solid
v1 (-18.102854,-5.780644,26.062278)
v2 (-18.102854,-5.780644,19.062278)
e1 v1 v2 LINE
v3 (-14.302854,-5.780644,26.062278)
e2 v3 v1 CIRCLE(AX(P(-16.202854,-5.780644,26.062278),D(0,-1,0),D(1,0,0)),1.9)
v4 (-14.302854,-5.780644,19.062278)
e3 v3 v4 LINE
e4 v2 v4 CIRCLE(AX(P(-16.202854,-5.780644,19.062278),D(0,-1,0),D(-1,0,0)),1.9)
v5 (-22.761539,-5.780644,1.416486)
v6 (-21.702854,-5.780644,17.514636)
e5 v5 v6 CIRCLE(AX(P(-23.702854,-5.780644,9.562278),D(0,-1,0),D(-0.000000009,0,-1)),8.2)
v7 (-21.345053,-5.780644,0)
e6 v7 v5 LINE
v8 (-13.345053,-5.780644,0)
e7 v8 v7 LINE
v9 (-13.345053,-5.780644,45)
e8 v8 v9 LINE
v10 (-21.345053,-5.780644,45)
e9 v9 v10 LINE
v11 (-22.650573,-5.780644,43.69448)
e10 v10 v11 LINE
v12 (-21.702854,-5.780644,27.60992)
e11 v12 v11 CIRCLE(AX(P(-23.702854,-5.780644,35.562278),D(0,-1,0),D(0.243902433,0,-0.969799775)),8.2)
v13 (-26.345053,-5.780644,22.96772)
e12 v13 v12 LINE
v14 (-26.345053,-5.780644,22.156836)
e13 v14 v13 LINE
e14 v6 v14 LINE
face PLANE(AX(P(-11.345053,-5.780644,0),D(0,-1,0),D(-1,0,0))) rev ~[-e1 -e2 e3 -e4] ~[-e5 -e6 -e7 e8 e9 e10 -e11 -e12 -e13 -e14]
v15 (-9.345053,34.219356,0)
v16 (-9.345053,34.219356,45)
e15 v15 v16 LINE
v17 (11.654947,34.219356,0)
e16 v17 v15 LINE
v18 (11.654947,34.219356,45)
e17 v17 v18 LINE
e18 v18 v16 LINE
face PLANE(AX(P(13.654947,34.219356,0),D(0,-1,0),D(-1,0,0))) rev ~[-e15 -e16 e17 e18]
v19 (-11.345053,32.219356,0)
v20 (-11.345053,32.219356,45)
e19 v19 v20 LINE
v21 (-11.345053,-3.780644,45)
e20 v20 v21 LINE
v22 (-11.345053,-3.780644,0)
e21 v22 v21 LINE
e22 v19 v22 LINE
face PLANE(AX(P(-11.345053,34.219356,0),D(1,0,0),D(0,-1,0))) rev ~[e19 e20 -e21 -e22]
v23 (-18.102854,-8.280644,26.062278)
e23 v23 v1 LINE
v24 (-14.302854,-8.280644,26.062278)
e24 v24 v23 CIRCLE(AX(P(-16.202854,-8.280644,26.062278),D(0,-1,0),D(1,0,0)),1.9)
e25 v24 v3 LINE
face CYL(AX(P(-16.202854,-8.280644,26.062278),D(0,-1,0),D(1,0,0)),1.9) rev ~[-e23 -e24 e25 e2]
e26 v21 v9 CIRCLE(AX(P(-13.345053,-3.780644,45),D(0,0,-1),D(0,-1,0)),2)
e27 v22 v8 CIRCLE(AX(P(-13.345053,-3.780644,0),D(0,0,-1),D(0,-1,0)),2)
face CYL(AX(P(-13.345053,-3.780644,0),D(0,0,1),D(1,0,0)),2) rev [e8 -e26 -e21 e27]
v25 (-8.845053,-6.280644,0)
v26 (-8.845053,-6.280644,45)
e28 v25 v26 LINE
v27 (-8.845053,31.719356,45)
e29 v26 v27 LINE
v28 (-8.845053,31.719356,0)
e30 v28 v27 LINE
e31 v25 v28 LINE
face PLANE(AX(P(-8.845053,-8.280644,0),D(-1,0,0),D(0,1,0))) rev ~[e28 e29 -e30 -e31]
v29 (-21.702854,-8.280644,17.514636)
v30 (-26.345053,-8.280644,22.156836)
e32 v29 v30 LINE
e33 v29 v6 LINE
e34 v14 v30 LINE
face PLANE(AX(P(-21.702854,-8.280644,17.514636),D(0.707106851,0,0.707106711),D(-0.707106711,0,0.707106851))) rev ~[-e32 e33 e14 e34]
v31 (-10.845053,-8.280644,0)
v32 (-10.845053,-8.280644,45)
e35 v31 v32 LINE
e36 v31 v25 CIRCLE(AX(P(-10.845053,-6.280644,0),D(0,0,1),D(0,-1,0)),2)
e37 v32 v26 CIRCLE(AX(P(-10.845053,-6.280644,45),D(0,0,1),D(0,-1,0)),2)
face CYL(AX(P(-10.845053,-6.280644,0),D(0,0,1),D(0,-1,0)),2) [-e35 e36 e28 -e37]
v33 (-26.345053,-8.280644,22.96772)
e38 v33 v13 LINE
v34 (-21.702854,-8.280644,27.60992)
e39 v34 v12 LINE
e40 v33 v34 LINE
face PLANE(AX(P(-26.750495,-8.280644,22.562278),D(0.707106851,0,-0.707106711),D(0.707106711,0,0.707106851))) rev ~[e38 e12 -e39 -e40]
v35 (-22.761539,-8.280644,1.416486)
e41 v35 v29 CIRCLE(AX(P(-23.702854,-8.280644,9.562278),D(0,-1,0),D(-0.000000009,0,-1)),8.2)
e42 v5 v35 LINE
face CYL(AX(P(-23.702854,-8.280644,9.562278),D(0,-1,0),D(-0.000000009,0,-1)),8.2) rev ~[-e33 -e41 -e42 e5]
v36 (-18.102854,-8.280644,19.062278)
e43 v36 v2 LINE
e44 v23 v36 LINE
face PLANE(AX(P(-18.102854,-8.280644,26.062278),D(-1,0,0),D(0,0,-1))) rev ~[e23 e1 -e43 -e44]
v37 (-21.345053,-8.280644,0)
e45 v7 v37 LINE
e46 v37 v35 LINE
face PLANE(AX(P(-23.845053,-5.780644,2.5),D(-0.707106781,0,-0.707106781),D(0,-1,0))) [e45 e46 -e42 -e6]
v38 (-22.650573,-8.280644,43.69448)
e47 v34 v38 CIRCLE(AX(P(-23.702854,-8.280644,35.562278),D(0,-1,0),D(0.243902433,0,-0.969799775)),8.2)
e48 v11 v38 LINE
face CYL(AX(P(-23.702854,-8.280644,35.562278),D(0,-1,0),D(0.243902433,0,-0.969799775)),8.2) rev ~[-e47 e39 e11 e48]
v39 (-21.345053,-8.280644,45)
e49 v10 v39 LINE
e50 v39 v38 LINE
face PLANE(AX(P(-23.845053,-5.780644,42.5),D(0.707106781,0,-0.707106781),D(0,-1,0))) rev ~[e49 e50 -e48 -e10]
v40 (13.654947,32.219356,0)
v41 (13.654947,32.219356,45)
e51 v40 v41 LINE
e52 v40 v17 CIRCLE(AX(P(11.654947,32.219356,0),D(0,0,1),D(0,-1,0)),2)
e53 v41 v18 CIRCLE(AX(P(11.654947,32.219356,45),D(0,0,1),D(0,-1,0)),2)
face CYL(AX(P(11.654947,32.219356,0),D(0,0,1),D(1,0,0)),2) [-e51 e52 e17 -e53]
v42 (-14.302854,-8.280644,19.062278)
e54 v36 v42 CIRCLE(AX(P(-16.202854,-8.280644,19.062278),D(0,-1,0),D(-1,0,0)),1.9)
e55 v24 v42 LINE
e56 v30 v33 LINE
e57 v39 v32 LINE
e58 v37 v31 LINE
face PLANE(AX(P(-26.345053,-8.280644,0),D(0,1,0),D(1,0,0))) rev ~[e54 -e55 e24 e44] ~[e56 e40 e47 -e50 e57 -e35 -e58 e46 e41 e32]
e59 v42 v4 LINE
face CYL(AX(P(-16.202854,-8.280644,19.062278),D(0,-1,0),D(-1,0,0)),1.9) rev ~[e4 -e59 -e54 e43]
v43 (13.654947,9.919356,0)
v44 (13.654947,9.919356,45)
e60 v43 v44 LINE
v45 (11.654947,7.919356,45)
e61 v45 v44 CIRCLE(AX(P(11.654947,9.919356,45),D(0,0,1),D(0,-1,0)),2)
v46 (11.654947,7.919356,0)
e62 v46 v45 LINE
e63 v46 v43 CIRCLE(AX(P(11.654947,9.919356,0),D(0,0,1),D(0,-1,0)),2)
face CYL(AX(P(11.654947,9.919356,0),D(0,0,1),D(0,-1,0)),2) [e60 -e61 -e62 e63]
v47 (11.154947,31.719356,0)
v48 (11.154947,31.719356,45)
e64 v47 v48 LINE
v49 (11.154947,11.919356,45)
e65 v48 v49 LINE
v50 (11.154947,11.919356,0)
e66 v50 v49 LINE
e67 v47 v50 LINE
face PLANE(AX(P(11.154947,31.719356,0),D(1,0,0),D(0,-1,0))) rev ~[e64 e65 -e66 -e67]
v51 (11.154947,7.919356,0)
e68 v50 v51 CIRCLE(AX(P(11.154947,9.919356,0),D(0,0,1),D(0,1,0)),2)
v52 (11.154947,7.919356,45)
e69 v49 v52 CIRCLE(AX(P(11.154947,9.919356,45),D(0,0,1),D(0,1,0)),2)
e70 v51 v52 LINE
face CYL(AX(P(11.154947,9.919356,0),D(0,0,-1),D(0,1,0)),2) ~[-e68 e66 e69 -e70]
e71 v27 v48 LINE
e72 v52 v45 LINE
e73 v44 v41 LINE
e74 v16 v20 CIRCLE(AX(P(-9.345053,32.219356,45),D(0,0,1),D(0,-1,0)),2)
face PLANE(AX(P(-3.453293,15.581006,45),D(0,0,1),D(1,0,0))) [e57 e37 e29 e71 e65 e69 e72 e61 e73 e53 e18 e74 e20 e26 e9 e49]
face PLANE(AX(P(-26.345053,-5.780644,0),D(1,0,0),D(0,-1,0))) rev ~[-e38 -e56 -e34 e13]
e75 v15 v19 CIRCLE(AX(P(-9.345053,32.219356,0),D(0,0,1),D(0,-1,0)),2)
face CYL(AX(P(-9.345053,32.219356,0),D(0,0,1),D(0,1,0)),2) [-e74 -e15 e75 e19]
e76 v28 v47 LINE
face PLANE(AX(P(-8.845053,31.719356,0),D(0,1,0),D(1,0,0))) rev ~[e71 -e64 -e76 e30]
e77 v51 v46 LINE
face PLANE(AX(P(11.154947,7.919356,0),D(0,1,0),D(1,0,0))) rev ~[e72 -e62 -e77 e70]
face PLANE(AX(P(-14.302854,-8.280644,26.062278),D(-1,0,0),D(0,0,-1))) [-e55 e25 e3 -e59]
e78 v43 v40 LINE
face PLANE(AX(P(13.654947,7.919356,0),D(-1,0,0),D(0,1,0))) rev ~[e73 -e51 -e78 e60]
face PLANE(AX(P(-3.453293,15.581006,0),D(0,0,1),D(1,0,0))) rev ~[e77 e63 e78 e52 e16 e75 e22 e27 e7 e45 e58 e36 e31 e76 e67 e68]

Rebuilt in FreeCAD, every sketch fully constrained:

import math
import FreeCAD as App
import Part
import Sketcher

V = App.Vector


def edges_at(feature, points):
    """Names of the edges that pass closest to the given points."""
    edges = feature.Shape.Edges
    near = lambda p: min(range(len(edges)), key=lambda i: edges[i].distToShape(Part.Vertex(*p))[0])
    return sorted({f"Edge{near(p) + 1}" for p in points})

doc = App.newDocument("Part")
body = doc.addObject("PartDesign::Body", "Body")

# Sketch on XY plane
sketch1 = body.newObject("Sketcher::SketchObject", "Sketch")
sketch1.AttachmentSupport = (doc.getObject("XY_Plane"), [""])
sketch1.MapMode = "FlatFace"
sketch1.addGeometry(Part.LineSegment(V(11.154947, 7.919356, 0), V(13.654947, 7.919356, 0)), False)
sketch1.addGeometry(Part.LineSegment(V(13.654947, 7.919356, 0), V(13.654947, 34.219356, 0)), False)
sketch1.addGeometry(Part.LineSegment(V(13.654947, 34.219356, 0), V(-11.345053, 34.219356, 0)), False)
sketch1.addGeometry(Part.LineSegment(V(-11.345053, 34.219356, 0), V(-11.345053, -5.780644, 0)), False)
sketch1.addGeometry(Part.LineSegment(V(-11.345053, -5.780644, 0), V(-26.345053, -5.780644, 0)), False)
sketch1.addGeometry(Part.LineSegment(V(-26.345053, -5.780644, 0), V(-26.345053, -8.280644, 0)), False)
sketch1.addGeometry(Part.LineSegment(V(-26.345053, -8.280644, 0), V(-8.845053, -8.280644, 0)), False)
sketch1.addGeometry(Part.LineSegment(V(-8.845053, -8.280644, 0), V(-8.845053, 31.719356, 0)), False)
sketch1.addGeometry(Part.LineSegment(V(-8.845053, 31.719356, 0), V(11.154947, 31.719356, 0)), False)
sketch1.addGeometry(Part.LineSegment(V(11.154947, 31.719356, 0), V(11.154947, 11.919356, 0)), False)
sketch1.addGeometry(Part.ArcOfCircle(Part.Circle(V(11.154947, 9.919356, 0), V(0, 0, 1), 2), math.radians(90), math.radians(270)), False)
sketch1.addConstraint(Sketcher.Constraint("Coincident", 0, 2, 1, 1))
sketch1.addConstraint(Sketcher.Constraint("Coincident", 1, 2, 2, 1))
sketch1.addConstraint(Sketcher.Constraint("Coincident", 2, 2, 3, 1))
sketch1.addConstraint(Sketcher.Constraint("Coincident", 3, 2, 4, 1))
sketch1.addConstraint(Sketcher.Constraint("Coincident", 4, 2, 5, 1))
sketch1.addConstraint(Sketcher.Constraint("Coincident", 5, 2, 6, 1))
sketch1.addConstraint(Sketcher.Constraint("Coincident", 6, 2, 7, 1))
sketch1.addConstraint(Sketcher.Constraint("Coincident", 7, 2, 8, 1))
sketch1.addConstraint(Sketcher.Constraint("Coincident", 8, 2, 9, 1))
sketch1.addConstraint(Sketcher.Constraint("Coincident", 9, 2, 10, 1))
sketch1.addConstraint(Sketcher.Constraint("Tangent", 10, 2, 0, 1))
sketch1.addConstraint(Sketcher.Constraint("Horizontal", 0))
sketch1.addConstraint(Sketcher.Constraint("Vertical", 1))
sketch1.addConstraint(Sketcher.Constraint("Horizontal", 2))
sketch1.addConstraint(Sketcher.Constraint("Vertical", 3))
sketch1.addConstraint(Sketcher.Constraint("Horizontal", 4))
sketch1.addConstraint(Sketcher.Constraint("Vertical", 5))
sketch1.addConstraint(Sketcher.Constraint("Horizontal", 6))
sketch1.addConstraint(Sketcher.Constraint("Vertical", 7))
sketch1.addConstraint(Sketcher.Constraint("Horizontal", 8))
sketch1.addConstraint(Sketcher.Constraint("Vertical", 9))
sketch1.addConstraint(Sketcher.Constraint("Vertical", 10, 3, 8, 2))
sketch1.addConstraint(Sketcher.Constraint("Equal", 0, 5))
sketch1.addConstraint(Sketcher.Constraint("Equal", 3, 7))
sketch1.addConstraint(Sketcher.Constraint("Radius", 10, 2.0))
sketch1.addConstraint(Sketcher.Constraint("DistanceX", 2, 2, 2, 1, 25.0))
sketch1.addConstraint(Sketcher.Constraint("DistanceX", 4, 2, 4, 1, 15.0))
sketch1.addConstraint(Sketcher.Constraint("DistanceX", 8, 1, 8, 2, 20.0))
sketch1.addConstraint(Sketcher.Constraint("DistanceY", 3, 2, 3, 1, 40.0))
sketch1.addConstraint(Sketcher.Constraint("DistanceX", 0, 1, 0, 2, 2.5))
sketch1.addConstraint(Sketcher.Constraint("DistanceY", 1, 1, 1, 2, 26.3))
sketch1.addConstraint(Sketcher.Constraint("DistanceX", -1, 1, 10, 3, 11.154947))
sketch1.addConstraint(Sketcher.Constraint("DistanceY", -1, 1, 10, 3, 9.919356))
pad1 = body.newObject("PartDesign::Pad", "Pad")
pad1.Profile = sketch1
pad1.Length = 45
doc.recompute()

fillet = body.newObject("PartDesign::Fillet", "Fillet")
fillet.Base = (pad1, edges_at(pad1, [
    (-8.845, -8.281, 22.5),
    (-11.345, -5.781, 22.5),
    (-11.345, 34.219, 22.5),
    (13.655, 34.219, 22.5),
    (13.655, 7.919, 22.5),
]))
fillet.Radius = 2
doc.recompute()

chamfer = body.newObject("PartDesign::Chamfer", "Chamfer")
chamfer.Base = (fillet, edges_at(fillet, [(-26.345, -7.031, 0), (-26.345, -7.031, 45)]))
chamfer.Size = 5

# Sketch on XZ plane
sketch2 = body.newObject("Sketcher::SketchObject", "Sketch001")
sketch2.AttachmentSupport = (doc.getObject("XZ_Plane"), [""])
sketch2.MapMode = "FlatFace"
sketch2.AttachmentOffset = App.Placement(V(0, 0, 8.280644), App.Rotation())
sketch2.addGeometry(Part.Circle(V(-20.345053, 4.25, 0), V(0, 0, 1), 1.8), False)
sketch2.addGeometry(Part.Circle(V(-20.345053, 40.75, 0), V(0, 0, 1), 1.8), False)
sketch2.addConstraint(Sketcher.Constraint("Equal", 0, 1))
sketch2.addConstraint(Sketcher.Constraint("Vertical", 0, 3, 1, 3))
sketch2.addConstraint(Sketcher.Constraint("Diameter", 0, 3.6))
sketch2.addConstraint(Sketcher.Constraint("DistanceY", 0, 3, 1, 3, 36.5))
sketch2.addConstraint(Sketcher.Constraint("DistanceY", -1, 1, 0, 3, 4.25))
sketch2.addConstraint(Sketcher.Constraint("DistanceX", 0, 3, -1, 1, 20.345053))
pocket1 = body.newObject("PartDesign::Pocket", "Pocket")
pocket1.Profile = sketch2
pocket1.Length = 5

# Sketch on XZ plane
sketch3 = body.newObject("Sketcher::SketchObject", "Sketch002")
sketch3.AttachmentSupport = (doc.getObject("XZ_Plane"), [""])
sketch3.MapMode = "FlatFace"
sketch3.AttachmentOffset = App.Placement(V(0, 0, 8.280644), App.Rotation())
sketch3.addGeometry(Part.ArcOfCircle(Part.Circle(V(-23.702854, 9.562278, 0), V(0, 0, 1), 8.2), math.radians(-90.000001), math.radians(75.88302)), False)
sketch3.addGeometry(Part.LineSegment(V(-21.702854, 17.514636, 0), V(-26.750495, 22.562278, 0)), False)
sketch3.addGeometry(Part.LineSegment(V(-26.750495, 22.562278, 0), V(-21.702854, 27.60992, 0)), False)
sketch3.addGeometry(Part.ArcOfCircle(Part.Circle(V(-23.702854, 35.562278, 0), V(0, 0, 1), 8.2), math.radians(-75.88302), math.radians(90.000001)), False)
sketch3.addGeometry(Part.LineSegment(V(-23.702854, 43.762278, 0), V(-32.41938, 43.762278, 0)), False)
sketch3.addGeometry(Part.LineSegment(V(-32.41938, 43.762278, 0), V(-32.41938, 1.362278, 0)), False)
sketch3.addGeometry(Part.LineSegment(V(-32.41938, 1.362278, 0), V(-23.702854, 1.362278, 0)), False)
sketch3.addGeometry(Part.ArcOfCircle(Part.Circle(V(-16.202854, 26.062278, 0), V(0, 0, 1), 1.9), math.radians(0), math.radians(180)), False)
sketch3.addGeometry(Part.LineSegment(V(-18.102854, 26.062278, 0), V(-18.102854, 19.062278, 0)), False)
sketch3.addGeometry(Part.ArcOfCircle(Part.Circle(V(-16.202854, 19.062278, 0), V(0, 0, 1), 1.9), math.radians(180), math.radians(360)), False)
sketch3.addGeometry(Part.LineSegment(V(-14.302854, 19.062278, 0), V(-14.302854, 26.062278, 0)), False)
sketch3.addConstraint(Sketcher.Constraint("Coincident", 0, 2, 1, 1))
sketch3.addConstraint(Sketcher.Constraint("Coincident", 1, 2, 2, 1))
sketch3.addConstraint(Sketcher.Constraint("Coincident", 2, 2, 3, 1))
sketch3.addConstraint(Sketcher.Constraint("Tangent", 3, 2, 4, 1))
sketch3.addConstraint(Sketcher.Constraint("Coincident", 4, 2, 5, 1))
sketch3.addConstraint(Sketcher.Constraint("Coincident", 5, 2, 6, 1))
sketch3.addConstraint(Sketcher.Constraint("Tangent", 6, 2, 0, 1))
sketch3.addConstraint(Sketcher.Constraint("Tangent", 7, 2, 8, 1))
sketch3.addConstraint(Sketcher.Constraint("Tangent", 8, 2, 9, 1))
sketch3.addConstraint(Sketcher.Constraint("Tangent", 9, 2, 10, 1))
sketch3.addConstraint(Sketcher.Constraint("Tangent", 10, 2, 7, 1))
sketch3.addConstraint(Sketcher.Constraint("Horizontal", 4))
sketch3.addConstraint(Sketcher.Constraint("Vertical", 5))
sketch3.addConstraint(Sketcher.Constraint("Horizontal", 6))
sketch3.addConstraint(Sketcher.Constraint("Vertical", 8))
sketch3.addConstraint(Sketcher.Constraint("Vertical", 10))
sketch3.addConstraint(Sketcher.Constraint("Equal", 0, 3))
sketch3.addConstraint(Sketcher.Constraint("Perpendicular", 1, 2))
sketch3.addConstraint(Sketcher.Constraint("Vertical", 0, 3, 3, 3))
sketch3.addConstraint(Sketcher.Constraint("Vertical", 0, 2, 2, 2))
sketch3.addConstraint(Sketcher.Constraint("Equal", 1, 2))
sketch3.addConstraint(Sketcher.Constraint("Radius", 0, 8.2))
sketch3.addConstraint(Sketcher.Constraint("Radius", 7, 1.9))
sketch3.addConstraint(Sketcher.Constraint("DistanceY", 8, 2, 8, 1, 7.0))
sketch3.addConstraint(Sketcher.Constraint("DistanceY", 5, 2, 5, 1, 42.4))
sketch3.addConstraint(Sketcher.Constraint("DistanceX", 0, 3, 0, 2, 2.0))
sketch3.addConstraint(Sketcher.Constraint("DistanceX", 3, 3, 7, 3, 7.5))
sketch3.addConstraint(Sketcher.Constraint("DistanceY", 7, 3, 3, 3, 9.5))
sketch3.addConstraint(Sketcher.Constraint("DistanceX", 4, 2, 4, 1, 8.716526))
sketch3.addConstraint(Sketcher.Constraint("DistanceY", -1, 1, 3, 3, 35.562278))
sketch3.addConstraint(Sketcher.Constraint("DistanceX", 4, 2, -1, 1, 32.41938))
pocket2 = body.newObject("PartDesign::Pocket", "Pocket001")
pocket2.Profile = sketch3
pocket2.Length = 5

doc.recompute()
